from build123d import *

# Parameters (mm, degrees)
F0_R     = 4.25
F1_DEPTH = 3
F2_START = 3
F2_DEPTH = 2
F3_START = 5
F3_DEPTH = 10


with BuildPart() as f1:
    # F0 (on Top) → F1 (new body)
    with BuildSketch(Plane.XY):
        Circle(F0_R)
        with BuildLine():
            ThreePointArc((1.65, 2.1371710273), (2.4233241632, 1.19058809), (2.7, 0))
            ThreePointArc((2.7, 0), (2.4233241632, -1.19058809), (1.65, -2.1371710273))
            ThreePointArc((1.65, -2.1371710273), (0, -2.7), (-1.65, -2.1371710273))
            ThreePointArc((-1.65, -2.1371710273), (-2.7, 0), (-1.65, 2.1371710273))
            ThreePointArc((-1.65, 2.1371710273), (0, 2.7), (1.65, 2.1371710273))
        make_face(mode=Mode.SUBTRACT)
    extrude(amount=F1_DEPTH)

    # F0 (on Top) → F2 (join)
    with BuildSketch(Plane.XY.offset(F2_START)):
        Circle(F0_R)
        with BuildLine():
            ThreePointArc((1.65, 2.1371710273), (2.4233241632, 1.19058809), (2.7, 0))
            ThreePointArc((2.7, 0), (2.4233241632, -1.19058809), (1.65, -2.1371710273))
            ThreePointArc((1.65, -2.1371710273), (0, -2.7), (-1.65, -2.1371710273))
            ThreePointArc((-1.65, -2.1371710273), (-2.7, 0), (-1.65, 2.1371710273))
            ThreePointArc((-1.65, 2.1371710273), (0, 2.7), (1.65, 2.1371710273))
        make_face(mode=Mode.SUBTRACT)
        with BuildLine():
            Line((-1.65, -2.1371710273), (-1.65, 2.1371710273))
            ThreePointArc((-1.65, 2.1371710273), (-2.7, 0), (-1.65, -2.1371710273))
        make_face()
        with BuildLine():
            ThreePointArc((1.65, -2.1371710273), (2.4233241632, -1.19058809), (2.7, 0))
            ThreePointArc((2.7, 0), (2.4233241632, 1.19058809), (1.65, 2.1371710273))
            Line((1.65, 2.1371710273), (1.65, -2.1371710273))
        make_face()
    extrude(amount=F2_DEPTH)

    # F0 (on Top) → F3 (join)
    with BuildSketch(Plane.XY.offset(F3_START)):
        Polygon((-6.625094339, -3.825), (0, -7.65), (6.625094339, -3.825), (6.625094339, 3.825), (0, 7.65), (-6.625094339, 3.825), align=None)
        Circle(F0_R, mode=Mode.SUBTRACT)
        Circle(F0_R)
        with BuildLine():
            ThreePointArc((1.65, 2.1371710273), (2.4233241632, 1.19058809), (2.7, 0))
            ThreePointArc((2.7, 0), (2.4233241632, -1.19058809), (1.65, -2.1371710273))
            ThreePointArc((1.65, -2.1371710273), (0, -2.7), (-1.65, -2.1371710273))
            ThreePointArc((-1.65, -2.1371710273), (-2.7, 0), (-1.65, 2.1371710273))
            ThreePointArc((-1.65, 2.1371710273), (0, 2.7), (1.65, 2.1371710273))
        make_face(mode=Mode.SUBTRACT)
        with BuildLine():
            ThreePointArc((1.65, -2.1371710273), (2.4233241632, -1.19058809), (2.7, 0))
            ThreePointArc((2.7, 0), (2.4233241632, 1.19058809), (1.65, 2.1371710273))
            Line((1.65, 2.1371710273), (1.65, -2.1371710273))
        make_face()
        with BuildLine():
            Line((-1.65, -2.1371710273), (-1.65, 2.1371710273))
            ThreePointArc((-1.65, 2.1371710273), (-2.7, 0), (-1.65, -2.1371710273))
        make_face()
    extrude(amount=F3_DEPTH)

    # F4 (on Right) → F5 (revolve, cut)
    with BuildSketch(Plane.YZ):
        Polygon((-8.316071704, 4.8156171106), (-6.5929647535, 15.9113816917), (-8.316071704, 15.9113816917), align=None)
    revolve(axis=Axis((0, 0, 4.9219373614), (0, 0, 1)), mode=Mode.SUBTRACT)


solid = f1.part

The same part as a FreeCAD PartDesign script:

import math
import FreeCAD as App
import Part
import Sketcher

V = App.Vector
Q = App.Units.Quantity

doc = App.newDocument("Part")
body = doc.addObject("PartDesign::Body", "Body")

sketch1 = body.newObject("Sketcher::SketchObject", "Sketch")
sketch1.AttachmentSupport = (doc.getObject("XY_Plane"), [""])
sketch1.MapMode = "FlatFace"
sketch1.addGeometry([
    Part.Circle(V(0, 0, 0), V(0, 0, 1), 4.2),
    Part.ArcOfCircle(Part.Circle(V(0, 0, 0), V(0, 0, 1), 2.7), math.radians(52), math.radians(128)),
    Part.ArcOfCircle(Part.Circle(V(0, 0, 0), V(0, 0, 1), 2.7), math.radians(0), math.radians(52)),
    Part.ArcOfCircle(Part.Circle(V(0, 0, 0), V(0, 0, 1), 2.7), math.radians(-52), math.radians(0)),
    Part.ArcOfCircle(Part.Circle(V(0, 0, 0), V(0, 0, 1), 2.7), math.radians(-128), math.radians(-52)),
    Part.ArcOfCircle(Part.Circle(V(0, 0, 0), V(0, 0, 1), 2.7), math.radians(128), math.radians(232)),
], False)
sketch1.addConstraint([
    Sketcher.Constraint("Tangent", 1, 1, 2, 2),
    Sketcher.Constraint("Tangent", 2, 1, 3, 2),
    Sketcher.Constraint("Tangent", 3, 1, 4, 2),
    Sketcher.Constraint("Tangent", 4, 1, 5, 2),
    Sketcher.Constraint("Tangent", 5, 1, 1, 2),
    Sketcher.Constraint("Coincident", 0, 3, -1, 1),
    Sketcher.Constraint("Coincident", 1, 3, -1, 1),
    Sketcher.Constraint("Coincident", 3, 3, -1, 1),
    Sketcher.Constraint("PointOnObject", 2, 1, -1),
    Sketcher.Constraint("Horizontal", 3, 1, 4, 1),
    Sketcher.Constraint("Horizontal", 1, 1, 5, 1),
    Sketcher.Constraint("Vertical", 1, 1, 3, 1),
    Sketcher.Constraint("Diameter", 0, Q("8.5 mm")),
    Sketcher.Constraint("Radius", 1, Q("2.7 mm")),
    Sketcher.Constraint("DistanceX", -1, 1, 1, 1, Q("1.65 mm")),
])
pad1 = body.newObject("PartDesign::Pad", "Pad")
pad1.Profile = sketch1
pad1.Length = 3

sketch2 = body.newObject("Sketcher::SketchObject", "Sketch001")
sketch2.AttachmentSupport = (doc.getObject("XY_Plane"), [""])
sketch2.MapMode = "FlatFace"
sketch2.AttachmentOffset = App.Placement(V(0, 0, 3), App.Rotation())
sketch2.addGeometry([
    Part.Circle(V(0, 0, 0), V(0, 0, 1), 4.2),
    Part.ArcOfCircle(Part.Circle(V(0, 0, 0), V(0, 0, 1), 2.7), math.radians(52), math.radians(128)),
    Part.LineSegment(V(1.6, 2.1, 0), V(1.6, -2.1, 0)),
    Part.ArcOfCircle(Part.Circle(V(0, 0, 0), V(0, 0, 1), 2.7), math.radians(-128), math.radians(-52)),
    Part.LineSegment(V(-1.6, -2.1, 0), V(-1.6, 2.1, 0)),
], False)
sketch2.addConstraint([
    Sketcher.Constraint("Coincident", 1, 1, 2, 1),
    Sketcher.Constraint("Coincident", 2, 2, 3, 2),
    Sketcher.Constraint("Coincident", 3, 1, 4, 1),
    Sketcher.Constraint("Coincident", 4, 2, 1, 2),
    Sketcher.Constraint("Vertical", 2),
    Sketcher.Constraint("Vertical", 4),
    Sketcher.Constraint("Coincident", 0, 3, -1, 1),
    Sketcher.Constraint("Coincident", 1, 3, -1, 1),
    Sketcher.Constraint("Coincident", 3, 3, -1, 1),
    Sketcher.Constraint("Equal", 1, 3),
    Sketcher.Constraint("Horizontal", 2, 2, 3, 1),
    Sketcher.Constraint("Diameter", 0, Q("8.5 mm")),
    Sketcher.Constraint("Radius", 1, Q("2.7 mm")),
    Sketcher.Constraint("DistanceX", 3, 1, 2, 2, Q("3.3 mm")),
])
pad2 = body.newObject("PartDesign::Pad", "Pad001")
pad2.Profile = sketch2
pad2.Length = 2

sketch3 = body.newObject("Sketcher::SketchObject", "Sketch002")
sketch3.AttachmentSupport = (doc.getObject("XY_Plane"), [""])
sketch3.MapMode = "FlatFace"
sketch3.AttachmentOffset = App.Placement(V(0, 0, 5), App.Rotation())
sketch3.addGeometry([
    Part.LineSegment(V(-6.6, -3.8, 0), V(0, -7.7, 0)),
    Part.LineSegment(V(0, -7.7, 0), V(6.6, -3.8, 0)),
    Part.LineSegment(V(6.6, -3.8, 0), V(6.6, 3.8, 0)),
    Part.LineSegment(V(6.6, 3.8, 0), V(0, 7.7, 0)),
    Part.LineSegment(V(0, 7.7, 0), V(-6.6, 3.8, 0)),
    Part.LineSegment(V(-6.6, 3.8, 0), V(-6.6, -3.8, 0)),
    Part.ArcOfCircle(Part.Circle(V(0, 0, 0), V(0, 0, 1), 2.7), math.radians(52), math.radians(128)),
    Part.LineSegment(V(1.6, 2.1, 0), V(1.6, -2.1, 0)),
    Part.ArcOfCircle(Part.Circle(V(0, 0, 0), V(0, 0, 1), 2.7), math.radians(-128), math.radians(-52)),
    Part.LineSegment(V(-1.6, -2.1, 0), V(-1.6, 2.1, 0)),
], False)
sketch3.addConstraint([
    Sketcher.Constraint("Coincident", 0, 2, 1, 1),
    Sketcher.Constraint("Coincident", 1, 2, 2, 1),
    Sketcher.Constraint("Coincident", 2, 2, 3, 1),
    Sketcher.Constraint("Coincident", 3, 2, 4, 1),
    Sketcher.Constraint("Coincident", 4, 2, 5, 1),
    Sketcher.Constraint("Coincident", 5, 2, 0, 1),
    Sketcher.Constraint("Coincident", 6, 1, 7, 1),
    Sketcher.Constraint("Coincident", 7, 2, 8, 2),
    Sketcher.Constraint("Coincident", 8, 1, 9, 1),
    Sketcher.Constraint("Coincident", 9, 2, 6, 2),
    Sketcher.Constraint("Vertical", 2),
    Sketcher.Constraint("Vertical", 5),
    Sketcher.Constraint("Vertical", 7),
    Sketcher.Constraint("Vertical", 9),
    Sketcher.Constraint("Coincident", 6, 3, -1, 1),
    Sketcher.Constraint("Coincident", 8, 3, -1, 1),
    Sketcher.Constraint("Equal", 6, 8),
    Sketcher.Constraint("Symmetric", 0, 2, 3, 2, -1, 1),
    Sketcher.Constraint("Symmetric", 1, 2, 4, 2, -1, 1),
    Sketcher.Constraint("PointOnObject", 0, 2, -2),
    Sketcher.Constraint("Parallel", 0, 3),
    Sketcher.Constraint("Horizontal", 2, 2, 4, 2),
    Sketcher.Constraint("Horizontal", 7, 2, 8, 1),
    Sketcher.Constraint("Radius", 6, Q("2.7 mm")),
    Sketcher.Constraint("Angle", 0, Q("-30 deg")),
    Sketcher.Constraint("DistanceY", 2, 1, 2, 2, Q("7.65 mm")),
    Sketcher.Constraint("DistanceY", 0, 2, 3, 2, Q("15.3 mm")),
    Sketcher.Constraint("DistanceX", 8, 1, 7, 2, Q("3.3 mm")),
])
pad3 = body.newObject("PartDesign::Pad", "Pad002")
pad3.Profile = sketch3
pad3.Length = 10

sketch4 = body.newObject("Sketcher::SketchObject", "Sketch003")
sketch4.AttachmentSupport = (doc.getObject("YZ_Plane"), [""])
sketch4.MapMode = "FlatFace"
sketch4.addGeometry([
    Part.LineSegment(V(-8.3, 4.8, 0), V(-6.6, 15.9, 0)),
    Part.LineSegment(V(-6.6, 15.9, 0), V(-8.3, 15.9, 0)),
    Part.LineSegment(V(-8.3, 15.9, 0), V(-8.3, 4.8, 0)),
], False)
sketch4.addConstraint([
    Sketcher.Constraint("Coincident", 0, 2, 1, 1),
    Sketcher.Constraint("Coincident", 1, 2, 2, 1),
    Sketcher.Constraint("Coincident", 2, 2, 0, 1),
    Sketcher.Constraint("Horizontal", 1),
    Sketcher.Constraint("Vertical", 2),
    Sketcher.Constraint("Distance", 0, Q("11.228762 mm")),
    Sketcher.Constraint("DistanceX", 1, 2, 1, 1, Q("1.723107 mm")),
    Sketcher.Constraint("DistanceY", -1, 1, 0, 2, Q("15.911382 mm")),
    Sketcher.Constraint("DistanceX", 1, 2, -1, 1, Q("8.316072 mm")),
])
groove = body.newObject("PartDesign::Groove", "Groove")
groove.Profile = sketch4
groove.ReferenceAxis = (sketch4, ["V_Axis"])
groove.Angle = 360

doc.recompute()
